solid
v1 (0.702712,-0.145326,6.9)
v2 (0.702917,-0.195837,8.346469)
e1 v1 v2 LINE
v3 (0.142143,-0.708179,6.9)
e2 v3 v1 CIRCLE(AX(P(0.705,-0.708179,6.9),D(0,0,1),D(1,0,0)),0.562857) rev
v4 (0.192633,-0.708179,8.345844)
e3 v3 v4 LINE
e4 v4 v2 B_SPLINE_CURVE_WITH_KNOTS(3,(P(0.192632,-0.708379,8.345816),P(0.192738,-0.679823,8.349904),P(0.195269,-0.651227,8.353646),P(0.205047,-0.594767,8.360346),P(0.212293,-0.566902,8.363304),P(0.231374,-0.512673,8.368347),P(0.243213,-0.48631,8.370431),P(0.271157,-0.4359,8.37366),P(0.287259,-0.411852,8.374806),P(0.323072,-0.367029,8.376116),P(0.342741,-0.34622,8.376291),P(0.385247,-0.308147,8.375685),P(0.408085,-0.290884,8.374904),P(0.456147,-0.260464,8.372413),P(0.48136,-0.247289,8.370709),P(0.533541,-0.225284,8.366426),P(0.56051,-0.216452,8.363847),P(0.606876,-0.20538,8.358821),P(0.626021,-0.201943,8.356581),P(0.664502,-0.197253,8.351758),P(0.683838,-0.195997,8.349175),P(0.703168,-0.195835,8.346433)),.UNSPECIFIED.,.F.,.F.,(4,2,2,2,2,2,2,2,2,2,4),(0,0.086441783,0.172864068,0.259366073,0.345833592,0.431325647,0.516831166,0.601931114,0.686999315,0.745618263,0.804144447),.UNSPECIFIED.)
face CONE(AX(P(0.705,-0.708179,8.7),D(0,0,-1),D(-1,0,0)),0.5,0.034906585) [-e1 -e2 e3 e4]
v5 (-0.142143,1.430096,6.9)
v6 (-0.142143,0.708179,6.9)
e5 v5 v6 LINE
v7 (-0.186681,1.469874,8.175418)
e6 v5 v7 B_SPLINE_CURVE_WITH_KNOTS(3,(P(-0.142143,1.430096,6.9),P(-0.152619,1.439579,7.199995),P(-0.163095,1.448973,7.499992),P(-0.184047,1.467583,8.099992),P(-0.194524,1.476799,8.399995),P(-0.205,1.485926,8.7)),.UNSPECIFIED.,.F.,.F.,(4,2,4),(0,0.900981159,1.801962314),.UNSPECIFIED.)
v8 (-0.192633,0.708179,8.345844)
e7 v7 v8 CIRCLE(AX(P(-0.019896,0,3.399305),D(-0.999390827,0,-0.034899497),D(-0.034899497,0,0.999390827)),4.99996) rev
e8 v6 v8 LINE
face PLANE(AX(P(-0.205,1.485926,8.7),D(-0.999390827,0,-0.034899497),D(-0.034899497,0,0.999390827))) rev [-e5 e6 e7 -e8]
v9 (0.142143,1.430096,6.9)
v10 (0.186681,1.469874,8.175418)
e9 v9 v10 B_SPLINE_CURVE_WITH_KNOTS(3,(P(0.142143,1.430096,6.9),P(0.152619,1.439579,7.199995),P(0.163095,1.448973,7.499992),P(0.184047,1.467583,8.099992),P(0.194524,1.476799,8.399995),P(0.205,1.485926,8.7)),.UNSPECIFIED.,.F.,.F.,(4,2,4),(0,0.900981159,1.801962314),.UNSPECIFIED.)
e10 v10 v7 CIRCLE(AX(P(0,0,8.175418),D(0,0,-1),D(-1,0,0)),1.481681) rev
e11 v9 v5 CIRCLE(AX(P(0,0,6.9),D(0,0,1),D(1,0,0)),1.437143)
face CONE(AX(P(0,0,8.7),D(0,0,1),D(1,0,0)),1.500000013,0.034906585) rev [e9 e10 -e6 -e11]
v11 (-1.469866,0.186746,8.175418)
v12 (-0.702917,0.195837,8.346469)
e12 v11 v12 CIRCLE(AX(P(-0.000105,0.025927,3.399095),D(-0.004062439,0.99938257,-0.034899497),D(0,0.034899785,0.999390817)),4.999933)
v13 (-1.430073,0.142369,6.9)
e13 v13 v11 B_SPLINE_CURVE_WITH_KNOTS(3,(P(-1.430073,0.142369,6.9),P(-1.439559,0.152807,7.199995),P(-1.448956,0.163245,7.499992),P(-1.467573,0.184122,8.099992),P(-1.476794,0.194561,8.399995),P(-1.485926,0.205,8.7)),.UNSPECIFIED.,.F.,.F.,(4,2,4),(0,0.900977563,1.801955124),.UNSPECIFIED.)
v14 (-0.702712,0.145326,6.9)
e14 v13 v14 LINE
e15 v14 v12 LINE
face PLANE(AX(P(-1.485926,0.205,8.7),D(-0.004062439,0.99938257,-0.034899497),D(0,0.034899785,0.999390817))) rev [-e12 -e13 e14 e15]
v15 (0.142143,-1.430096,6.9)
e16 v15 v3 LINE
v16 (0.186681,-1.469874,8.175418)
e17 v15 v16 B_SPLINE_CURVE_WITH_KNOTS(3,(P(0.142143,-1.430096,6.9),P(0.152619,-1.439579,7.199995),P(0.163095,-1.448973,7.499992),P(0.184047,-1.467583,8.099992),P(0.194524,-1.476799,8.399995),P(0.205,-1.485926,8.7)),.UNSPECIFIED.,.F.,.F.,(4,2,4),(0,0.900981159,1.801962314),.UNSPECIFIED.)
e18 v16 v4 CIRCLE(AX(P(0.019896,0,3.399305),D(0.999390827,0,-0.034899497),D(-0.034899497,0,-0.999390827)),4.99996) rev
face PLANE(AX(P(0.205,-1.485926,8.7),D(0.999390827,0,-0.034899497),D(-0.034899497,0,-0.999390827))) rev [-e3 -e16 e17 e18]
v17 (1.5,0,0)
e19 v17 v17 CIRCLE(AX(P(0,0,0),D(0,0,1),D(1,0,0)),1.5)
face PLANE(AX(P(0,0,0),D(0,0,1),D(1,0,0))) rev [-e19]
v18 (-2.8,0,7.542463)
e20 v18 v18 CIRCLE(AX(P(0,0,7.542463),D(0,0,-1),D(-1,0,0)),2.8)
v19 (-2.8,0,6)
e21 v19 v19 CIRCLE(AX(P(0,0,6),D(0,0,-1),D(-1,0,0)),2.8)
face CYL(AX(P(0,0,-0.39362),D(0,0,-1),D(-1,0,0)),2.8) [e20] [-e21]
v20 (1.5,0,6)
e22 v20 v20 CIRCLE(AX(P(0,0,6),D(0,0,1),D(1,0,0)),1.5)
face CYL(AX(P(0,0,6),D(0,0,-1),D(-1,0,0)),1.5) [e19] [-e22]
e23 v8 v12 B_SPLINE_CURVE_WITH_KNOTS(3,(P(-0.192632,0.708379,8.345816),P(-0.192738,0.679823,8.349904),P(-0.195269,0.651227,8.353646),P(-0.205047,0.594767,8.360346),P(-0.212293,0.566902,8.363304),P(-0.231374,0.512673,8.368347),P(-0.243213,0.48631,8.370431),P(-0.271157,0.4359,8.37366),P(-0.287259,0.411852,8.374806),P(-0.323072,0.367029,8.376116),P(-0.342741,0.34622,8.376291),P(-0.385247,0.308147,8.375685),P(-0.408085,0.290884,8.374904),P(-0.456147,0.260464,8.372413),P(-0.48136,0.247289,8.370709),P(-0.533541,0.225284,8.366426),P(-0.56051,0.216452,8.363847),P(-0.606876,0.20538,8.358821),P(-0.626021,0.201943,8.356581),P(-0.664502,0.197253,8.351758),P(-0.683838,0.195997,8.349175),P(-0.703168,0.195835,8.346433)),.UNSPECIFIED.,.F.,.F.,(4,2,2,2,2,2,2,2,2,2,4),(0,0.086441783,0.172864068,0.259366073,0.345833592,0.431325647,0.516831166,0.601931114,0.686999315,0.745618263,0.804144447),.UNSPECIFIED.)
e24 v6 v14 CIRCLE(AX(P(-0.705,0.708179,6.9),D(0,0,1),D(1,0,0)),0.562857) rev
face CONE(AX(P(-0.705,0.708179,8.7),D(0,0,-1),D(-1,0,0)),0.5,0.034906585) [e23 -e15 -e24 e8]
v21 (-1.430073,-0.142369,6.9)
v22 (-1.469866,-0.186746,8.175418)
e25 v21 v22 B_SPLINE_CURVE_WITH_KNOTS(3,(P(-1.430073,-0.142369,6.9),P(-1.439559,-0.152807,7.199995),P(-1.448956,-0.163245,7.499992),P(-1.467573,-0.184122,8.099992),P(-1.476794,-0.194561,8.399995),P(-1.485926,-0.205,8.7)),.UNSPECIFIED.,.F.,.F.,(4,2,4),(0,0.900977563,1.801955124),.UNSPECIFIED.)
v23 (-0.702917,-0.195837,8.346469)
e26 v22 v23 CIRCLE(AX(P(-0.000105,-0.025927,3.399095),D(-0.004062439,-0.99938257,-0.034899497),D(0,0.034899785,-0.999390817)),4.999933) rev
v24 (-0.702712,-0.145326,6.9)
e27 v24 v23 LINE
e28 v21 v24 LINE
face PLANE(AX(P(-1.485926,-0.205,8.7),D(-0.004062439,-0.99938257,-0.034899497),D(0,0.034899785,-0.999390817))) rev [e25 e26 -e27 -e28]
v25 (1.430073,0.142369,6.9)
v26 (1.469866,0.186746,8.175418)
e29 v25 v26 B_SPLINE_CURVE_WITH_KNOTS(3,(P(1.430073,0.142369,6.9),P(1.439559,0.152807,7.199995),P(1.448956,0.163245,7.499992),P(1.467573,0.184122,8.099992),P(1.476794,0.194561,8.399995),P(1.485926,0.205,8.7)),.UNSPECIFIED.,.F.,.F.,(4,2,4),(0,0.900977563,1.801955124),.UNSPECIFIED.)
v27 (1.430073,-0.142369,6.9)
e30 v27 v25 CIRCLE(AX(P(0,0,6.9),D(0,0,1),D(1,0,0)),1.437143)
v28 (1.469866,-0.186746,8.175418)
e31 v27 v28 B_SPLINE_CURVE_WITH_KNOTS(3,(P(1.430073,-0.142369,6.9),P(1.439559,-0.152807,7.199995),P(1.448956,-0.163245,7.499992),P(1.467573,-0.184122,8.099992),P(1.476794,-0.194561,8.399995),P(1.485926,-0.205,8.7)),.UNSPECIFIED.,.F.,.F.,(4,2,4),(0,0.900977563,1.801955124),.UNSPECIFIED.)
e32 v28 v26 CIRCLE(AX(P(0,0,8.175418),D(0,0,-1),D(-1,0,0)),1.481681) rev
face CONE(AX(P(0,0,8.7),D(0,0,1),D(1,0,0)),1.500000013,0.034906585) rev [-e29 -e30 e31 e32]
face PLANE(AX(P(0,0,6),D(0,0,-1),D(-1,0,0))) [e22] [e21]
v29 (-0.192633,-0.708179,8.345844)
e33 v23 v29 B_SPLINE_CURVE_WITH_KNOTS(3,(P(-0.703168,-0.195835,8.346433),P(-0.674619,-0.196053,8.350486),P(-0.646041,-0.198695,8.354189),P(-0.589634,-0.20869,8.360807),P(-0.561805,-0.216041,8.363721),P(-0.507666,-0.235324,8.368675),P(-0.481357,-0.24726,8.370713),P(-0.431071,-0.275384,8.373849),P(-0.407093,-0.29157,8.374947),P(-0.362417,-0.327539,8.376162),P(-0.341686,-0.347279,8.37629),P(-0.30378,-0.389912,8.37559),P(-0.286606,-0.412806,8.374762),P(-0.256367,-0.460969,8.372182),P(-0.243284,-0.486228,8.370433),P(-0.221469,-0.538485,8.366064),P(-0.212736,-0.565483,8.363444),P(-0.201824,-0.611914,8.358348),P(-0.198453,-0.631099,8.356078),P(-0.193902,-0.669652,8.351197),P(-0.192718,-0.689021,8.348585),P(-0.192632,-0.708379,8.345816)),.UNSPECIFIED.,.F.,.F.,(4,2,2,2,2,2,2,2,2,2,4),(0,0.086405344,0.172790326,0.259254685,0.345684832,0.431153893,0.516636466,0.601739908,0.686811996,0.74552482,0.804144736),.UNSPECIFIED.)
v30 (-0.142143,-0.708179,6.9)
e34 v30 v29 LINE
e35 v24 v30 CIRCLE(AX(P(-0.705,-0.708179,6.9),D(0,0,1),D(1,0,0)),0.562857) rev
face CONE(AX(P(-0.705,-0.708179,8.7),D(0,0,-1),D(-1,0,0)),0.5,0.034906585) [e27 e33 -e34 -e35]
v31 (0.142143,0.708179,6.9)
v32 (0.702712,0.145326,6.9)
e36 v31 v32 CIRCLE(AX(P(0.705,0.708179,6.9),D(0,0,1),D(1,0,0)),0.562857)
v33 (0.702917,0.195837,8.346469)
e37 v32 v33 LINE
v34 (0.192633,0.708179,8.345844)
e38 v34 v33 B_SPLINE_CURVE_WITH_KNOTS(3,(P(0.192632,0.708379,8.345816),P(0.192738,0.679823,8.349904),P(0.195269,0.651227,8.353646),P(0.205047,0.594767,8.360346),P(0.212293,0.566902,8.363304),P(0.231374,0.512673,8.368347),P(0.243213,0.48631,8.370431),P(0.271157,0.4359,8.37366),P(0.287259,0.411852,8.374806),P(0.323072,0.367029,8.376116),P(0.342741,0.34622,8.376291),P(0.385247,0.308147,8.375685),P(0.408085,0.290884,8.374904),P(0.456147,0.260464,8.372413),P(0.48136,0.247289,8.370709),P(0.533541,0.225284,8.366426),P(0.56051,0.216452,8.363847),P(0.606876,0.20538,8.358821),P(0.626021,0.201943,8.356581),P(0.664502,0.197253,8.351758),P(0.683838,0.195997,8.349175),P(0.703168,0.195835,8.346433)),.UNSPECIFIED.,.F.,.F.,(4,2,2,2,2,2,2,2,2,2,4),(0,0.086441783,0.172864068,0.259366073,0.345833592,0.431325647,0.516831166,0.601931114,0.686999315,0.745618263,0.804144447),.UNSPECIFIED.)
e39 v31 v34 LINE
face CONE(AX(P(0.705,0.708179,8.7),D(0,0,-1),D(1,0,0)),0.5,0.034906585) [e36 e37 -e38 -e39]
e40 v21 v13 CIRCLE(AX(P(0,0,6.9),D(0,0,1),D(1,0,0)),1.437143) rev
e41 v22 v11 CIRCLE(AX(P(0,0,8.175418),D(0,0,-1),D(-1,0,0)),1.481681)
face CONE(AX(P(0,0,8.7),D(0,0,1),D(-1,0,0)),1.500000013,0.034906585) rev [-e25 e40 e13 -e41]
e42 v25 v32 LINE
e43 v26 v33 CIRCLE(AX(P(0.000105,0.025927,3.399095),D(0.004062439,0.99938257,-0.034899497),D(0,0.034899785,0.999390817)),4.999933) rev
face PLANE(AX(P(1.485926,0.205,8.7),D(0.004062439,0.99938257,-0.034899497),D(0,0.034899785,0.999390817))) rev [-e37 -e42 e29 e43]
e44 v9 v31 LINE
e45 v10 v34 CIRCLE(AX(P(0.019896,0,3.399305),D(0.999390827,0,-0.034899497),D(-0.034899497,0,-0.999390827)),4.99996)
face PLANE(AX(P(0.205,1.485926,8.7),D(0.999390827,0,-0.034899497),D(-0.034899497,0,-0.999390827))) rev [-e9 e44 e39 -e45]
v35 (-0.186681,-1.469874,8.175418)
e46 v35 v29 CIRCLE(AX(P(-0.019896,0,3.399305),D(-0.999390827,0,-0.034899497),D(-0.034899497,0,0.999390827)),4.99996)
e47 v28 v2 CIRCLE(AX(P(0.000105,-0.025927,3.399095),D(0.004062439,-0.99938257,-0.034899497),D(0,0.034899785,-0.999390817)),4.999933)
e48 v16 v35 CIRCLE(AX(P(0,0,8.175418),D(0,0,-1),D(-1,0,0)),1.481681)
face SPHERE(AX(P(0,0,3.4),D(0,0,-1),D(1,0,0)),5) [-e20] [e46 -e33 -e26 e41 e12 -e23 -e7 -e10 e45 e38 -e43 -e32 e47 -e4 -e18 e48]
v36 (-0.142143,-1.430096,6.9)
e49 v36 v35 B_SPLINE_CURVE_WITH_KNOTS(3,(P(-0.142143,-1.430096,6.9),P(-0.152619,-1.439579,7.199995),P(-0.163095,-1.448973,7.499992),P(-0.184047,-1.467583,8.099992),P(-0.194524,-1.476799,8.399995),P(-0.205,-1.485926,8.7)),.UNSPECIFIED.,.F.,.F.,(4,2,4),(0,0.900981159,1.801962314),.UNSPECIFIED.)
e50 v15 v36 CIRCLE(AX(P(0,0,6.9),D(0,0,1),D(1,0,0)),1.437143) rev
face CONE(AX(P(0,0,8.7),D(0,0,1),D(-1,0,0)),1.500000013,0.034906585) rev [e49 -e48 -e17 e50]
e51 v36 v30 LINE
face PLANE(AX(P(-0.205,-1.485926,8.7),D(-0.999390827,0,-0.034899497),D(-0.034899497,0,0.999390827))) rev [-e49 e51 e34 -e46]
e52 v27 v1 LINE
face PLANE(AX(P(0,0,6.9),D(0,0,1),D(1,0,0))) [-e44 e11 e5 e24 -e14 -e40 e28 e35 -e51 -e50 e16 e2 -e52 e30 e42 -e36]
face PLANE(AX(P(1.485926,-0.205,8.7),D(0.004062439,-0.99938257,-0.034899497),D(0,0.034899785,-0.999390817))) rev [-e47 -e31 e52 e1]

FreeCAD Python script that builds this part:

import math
import FreeCAD as App
import Part
import Sketcher

V = App.Vector
Q = App.Units.Quantity

doc = App.newDocument("Part")
body = doc.addObject("PartDesign::Body", "Body")

sketch1 = doc.addObject("Sketcher::SketchObject", "Sketch")
body.addObject(sketch1)
sketch1.AttachmentSupport = (doc.XY_Plane, [""])
sketch1.MapMode = "FlatFace"
sketch1.addGeometry(Part.Circle(V(0, 0, 0), V(0, 0, 1), 1.5), False)
sketch1.addConstraint(Sketcher.Constraint("Coincident", 0, 3, -1, 1))
sketch1.addConstraint(Sketcher.Constraint("Diameter", 0, Q("3 mm")))
pad1 = doc.addObject("PartDesign::Pad", "Pad")
body.addObject(pad1)
pad1.Profile = sketch1
pad1.Length = 6

sketch2 = doc.addObject("Sketcher::SketchObject", "Sketch001")
body.addObject(sketch2)
sketch2.AttachmentSupport = (doc.XZ_Plane, [""])
sketch2.MapMode = "FlatFace"
sketch2.addGeometry(Part.LineSegment(V(2.8, 6, 0), V(0, 6, 0)), False)
sketch2.addGeometry(Part.LineSegment(V(0, 6, 0), V(0, 8.4, 0)), False)
sketch2.addGeometry(Part.ArcOfCircle(Part.Circle(V(0, 3.4, 0), V(0, 0, 1), 5), math.radians(56), math.radians(90)), False)
sketch2.addGeometry(Part.LineSegment(V(2.8, 7.5, 0), V(2.8, 6, 0)), False)
sketch2.addConstraint(Sketcher.Constraint("Coincident", 0, 2, 1, 1))
sketch2.addConstraint(Sketcher.Constraint("Coincident", 1, 2, 2, 2))
sketch2.addConstraint(Sketcher.Constraint("Coincident", 2, 1, 3, 1))
sketch2.addConstraint(Sketcher.Constraint("Coincident", 3, 2, 0, 1))
sketch2.addConstraint(Sketcher.Constraint("Horizontal", 0))
sketch2.addConstraint(Sketcher.Constraint("Vertical", 1))
sketch2.addConstraint(Sketcher.Constraint("Vertical", 3))
sketch2.addConstraint(Sketcher.Constraint("PointOnObject", 2, 3, -2))
sketch2.addConstraint(Sketcher.Constraint("PointOnObject", 0, 2, -2))
sketch2.addConstraint(Sketcher.Constraint("Radius", 2, Q("5 mm")))
sketch2.addConstraint(Sketcher.Constraint("DistanceX", 0, 2, 0, 1, Q("2.8 mm")))
sketch2.addConstraint(Sketcher.Constraint("DistanceY", 1, 1, 1, 2, Q("2.4 mm")))
sketch2.addConstraint(Sketcher.Constraint("DistanceY", -1, 1, 0, 2, Q("6 mm")))
revolution = doc.addObject("PartDesign::Revolution", "Revolution")
body.addObject(revolution)
revolution.Profile = sketch2
revolution.ReferenceAxis = (sketch2, ["V_Axis"])
revolution.Angle = 360

sketch3 = doc.addObject("Sketcher::SketchObject", "Sketch002")
body.addObject(sketch3)
sketch3.AttachmentSupport = (doc.XY_Plane, [""])
sketch3.MapMode = "FlatFace"
sketch3.AttachmentOffset = App.Placement(V(0, 0, 8.7), App.Rotation())
sketch3.addGeometry(Part.ArcOfCircle(Part.Circle(V(0, 0, 0), V(0, 0, 1), 1.5), math.radians(82.14), math.radians(97.86)), False)
sketch3.addGeometry(Part.LineSegment(V(0.21, 1.49, 0), V(0.21, 0.71, 0)), False)
sketch3.addGeometry(Part.ArcOfCircle(Part.Circle(V(0.71, 0.71, 0), V(0, 0, 1), 0.5), math.radians(180), math.radians(270)), False)
sketch3.addGeometry(Part.LineSegment(V(0.7, 0.21, 0), V(1.49, 0.21, 0)), False)
sketch3.addGeometry(Part.ArcOfCircle(Part.Circle(V(0, 0, 0), V(0, 0, 1), 1.5), math.radians(-7.86), math.radians(7.86)), False)
sketch3.addGeometry(Part.LineSegment(V(1.49, -0.21, 0), V(0.7, -0.21, 0)), False)
sketch3.addGeometry(Part.ArcOfCircle(Part.Circle(V(0.71, -0.71, 0), V(0, 0, 1), 0.5), math.radians(90), math.radians(180)), False)
sketch3.addGeometry(Part.LineSegment(V(0.21, -0.71, 0), V(0.21, -1.49, 0)), False)
sketch3.addGeometry(Part.ArcOfCircle(Part.Circle(V(0, 0, 0), V(0, 0, 1), 1.5), math.radians(-97.86), math.radians(-82.14)), False)
sketch3.addGeometry(Part.LineSegment(V(-0.21, -1.49, 0), V(-0.21, -0.71, 0)), False)
sketch3.addGeometry(Part.ArcOfCircle(Part.Circle(V(-0.71, -0.71, 0), V(0, 0, 1), 0.5), math.radians(0), math.radians(90)), False)
sketch3.addGeometry(Part.LineSegment(V(-0.7, -0.21, 0), V(-1.49, -0.21, 0)), False)
sketch3.addGeometry(Part.ArcOfCircle(Part.Circle(V(0, 0, 0), V(0, 0, 1), 1.5), math.radians(172.14), math.radians(187.86)), False)
sketch3.addGeometry(Part.LineSegment(V(-1.49, 0.21, 0), V(-0.7, 0.21, 0)), False)
sketch3.addGeometry(Part.ArcOfCircle(Part.Circle(V(-0.71, 0.71, 0), V(0, 0, 1), 0.5), math.radians(-90), math.radians(0)), False)
sketch3.addGeometry(Part.LineSegment(V(-0.21, 0.71, 0), V(-0.21, 1.49, 0)), False)
sketch3.addConstraint(Sketcher.Constraint("Coincident", 0, 1, 1, 1))
sketch3.addConstraint(Sketcher.Constraint("Tangent", 1, 2, 2, 1))
sketch3.addConstraint(Sketcher.Constraint("Tangent", 2, 2, 3, 1))
sketch3.addConstraint(Sketcher.Constraint("Coincident", 3, 2, 4, 2))
sketch3.addConstraint(Sketcher.Constraint("Coincident", 4, 1, 5, 1))
sketch3.addConstraint(Sketcher.Constraint("Tangent", 5, 2, 6, 1))
sketch3.addConstraint(Sketcher.Constraint("Tangent", 6, 2, 7, 1))
sketch3.addConstraint(Sketcher.Constraint("Coincident", 7, 2, 8, 2))
sketch3.addConstraint(Sketcher.Constraint("Coincident", 8, 1, 9, 1))
sketch3.addConstraint(Sketcher.Constraint("Tangent", 9, 2, 10, 1))
sketch3.addConstraint(Sketcher.Constraint("Tangent", 10, 2, 11, 1))
sketch3.addConstraint(Sketcher.Constraint("Coincident", 11, 2, 12, 2))
sketch3.addConstraint(Sketcher.Constraint("Coincident", 12, 1, 13, 1))
sketch3.addConstraint(Sketcher.Constraint("Tangent", 13, 2, 14, 1))
sketch3.addConstraint(Sketcher.Constraint("Tangent", 14, 2, 15, 1))
sketch3.addConstraint(Sketcher.Constraint("Coincident", 15, 2, 0, 2))
sketch3.addConstraint(Sketcher.Constraint("Vertical", 1))
sketch3.addConstraint(Sketcher.Constraint("Vertical", 7))
sketch3.addConstraint(Sketcher.Constraint("Vertical", 9))
sketch3.addConstraint(Sketcher.Constraint("Vertical", 15))
sketch3.addConstraint(Sketcher.Constraint("Coincident", 0, 3, -1, 1))
sketch3.addConstraint(Sketcher.Constraint("Coincident", 4, 3, -1, 1))
sketch3.addConstraint(Sketcher.Constraint("Coincident", 8, 3, -1, 1))
sketch3.addConstraint(Sketcher.Constraint("Coincident", 12, 3, -1, 1))
sketch3.addConstraint(Sketcher.Constraint("Equal", 0, 4))
sketch3.addConstraint(Sketcher.Constraint("Equal", 2, 6))
sketch3.addConstraint(Sketcher.Constraint("Equal", 4, 8))
sketch3.addConstraint(Sketcher.Constraint("Equal", 6, 10))
sketch3.addConstraint(Sketcher.Constraint("Equal", 8, 12))
sketch3.addConstraint(Sketcher.Constraint("Equal", 10, 14))
sketch3.addConstraint(Sketcher.Constraint("Symmetric", 2, 3, 10, 3, -1, 1))
sketch3.addConstraint(Sketcher.Constraint("Symmetric", 6, 3, 14, 3, -1, 1))
sketch3.addConstraint(Sketcher.Constraint("Symmetric", 6, 3, 10, 3, -2))
sketch3.addConstraint(Sketcher.Constraint("Parallel", 3, 11))
sketch3.addConstraint(Sketcher.Constraint("Parallel", 5, 13))
sketch3.addConstraint(Sketcher.Constraint("Horizontal", 4, 1, 11, 2))
sketch3.addConstraint(Sketcher.Constraint("Radius", 0, Q("1.5 mm")))
sketch3.addConstraint(Sketcher.Constraint("Radius", 2, Q("0.5 mm")))
sketch3.addConstraint(Sketcher.Constraint("DistanceX", 10, 3, 6, 3, Q("1.41 mm")))
sketch3.addConstraint(Sketcher.Constraint("DistanceY", 4, 1, 3, 2, Q("0.41 mm")))
sketch3.addConstraint(Sketcher.Constraint("DistanceY", 1, 2, 1, 1, Q("0.777747 mm")))
pocket1 = doc.addObject("PartDesign::Pocket", "Pocket")
body.addObject(pocket1)
pocket1.Profile = sketch3
pocket1.Length = 1.8
pocket1.TaperAngle = -2

doc.recompute()
